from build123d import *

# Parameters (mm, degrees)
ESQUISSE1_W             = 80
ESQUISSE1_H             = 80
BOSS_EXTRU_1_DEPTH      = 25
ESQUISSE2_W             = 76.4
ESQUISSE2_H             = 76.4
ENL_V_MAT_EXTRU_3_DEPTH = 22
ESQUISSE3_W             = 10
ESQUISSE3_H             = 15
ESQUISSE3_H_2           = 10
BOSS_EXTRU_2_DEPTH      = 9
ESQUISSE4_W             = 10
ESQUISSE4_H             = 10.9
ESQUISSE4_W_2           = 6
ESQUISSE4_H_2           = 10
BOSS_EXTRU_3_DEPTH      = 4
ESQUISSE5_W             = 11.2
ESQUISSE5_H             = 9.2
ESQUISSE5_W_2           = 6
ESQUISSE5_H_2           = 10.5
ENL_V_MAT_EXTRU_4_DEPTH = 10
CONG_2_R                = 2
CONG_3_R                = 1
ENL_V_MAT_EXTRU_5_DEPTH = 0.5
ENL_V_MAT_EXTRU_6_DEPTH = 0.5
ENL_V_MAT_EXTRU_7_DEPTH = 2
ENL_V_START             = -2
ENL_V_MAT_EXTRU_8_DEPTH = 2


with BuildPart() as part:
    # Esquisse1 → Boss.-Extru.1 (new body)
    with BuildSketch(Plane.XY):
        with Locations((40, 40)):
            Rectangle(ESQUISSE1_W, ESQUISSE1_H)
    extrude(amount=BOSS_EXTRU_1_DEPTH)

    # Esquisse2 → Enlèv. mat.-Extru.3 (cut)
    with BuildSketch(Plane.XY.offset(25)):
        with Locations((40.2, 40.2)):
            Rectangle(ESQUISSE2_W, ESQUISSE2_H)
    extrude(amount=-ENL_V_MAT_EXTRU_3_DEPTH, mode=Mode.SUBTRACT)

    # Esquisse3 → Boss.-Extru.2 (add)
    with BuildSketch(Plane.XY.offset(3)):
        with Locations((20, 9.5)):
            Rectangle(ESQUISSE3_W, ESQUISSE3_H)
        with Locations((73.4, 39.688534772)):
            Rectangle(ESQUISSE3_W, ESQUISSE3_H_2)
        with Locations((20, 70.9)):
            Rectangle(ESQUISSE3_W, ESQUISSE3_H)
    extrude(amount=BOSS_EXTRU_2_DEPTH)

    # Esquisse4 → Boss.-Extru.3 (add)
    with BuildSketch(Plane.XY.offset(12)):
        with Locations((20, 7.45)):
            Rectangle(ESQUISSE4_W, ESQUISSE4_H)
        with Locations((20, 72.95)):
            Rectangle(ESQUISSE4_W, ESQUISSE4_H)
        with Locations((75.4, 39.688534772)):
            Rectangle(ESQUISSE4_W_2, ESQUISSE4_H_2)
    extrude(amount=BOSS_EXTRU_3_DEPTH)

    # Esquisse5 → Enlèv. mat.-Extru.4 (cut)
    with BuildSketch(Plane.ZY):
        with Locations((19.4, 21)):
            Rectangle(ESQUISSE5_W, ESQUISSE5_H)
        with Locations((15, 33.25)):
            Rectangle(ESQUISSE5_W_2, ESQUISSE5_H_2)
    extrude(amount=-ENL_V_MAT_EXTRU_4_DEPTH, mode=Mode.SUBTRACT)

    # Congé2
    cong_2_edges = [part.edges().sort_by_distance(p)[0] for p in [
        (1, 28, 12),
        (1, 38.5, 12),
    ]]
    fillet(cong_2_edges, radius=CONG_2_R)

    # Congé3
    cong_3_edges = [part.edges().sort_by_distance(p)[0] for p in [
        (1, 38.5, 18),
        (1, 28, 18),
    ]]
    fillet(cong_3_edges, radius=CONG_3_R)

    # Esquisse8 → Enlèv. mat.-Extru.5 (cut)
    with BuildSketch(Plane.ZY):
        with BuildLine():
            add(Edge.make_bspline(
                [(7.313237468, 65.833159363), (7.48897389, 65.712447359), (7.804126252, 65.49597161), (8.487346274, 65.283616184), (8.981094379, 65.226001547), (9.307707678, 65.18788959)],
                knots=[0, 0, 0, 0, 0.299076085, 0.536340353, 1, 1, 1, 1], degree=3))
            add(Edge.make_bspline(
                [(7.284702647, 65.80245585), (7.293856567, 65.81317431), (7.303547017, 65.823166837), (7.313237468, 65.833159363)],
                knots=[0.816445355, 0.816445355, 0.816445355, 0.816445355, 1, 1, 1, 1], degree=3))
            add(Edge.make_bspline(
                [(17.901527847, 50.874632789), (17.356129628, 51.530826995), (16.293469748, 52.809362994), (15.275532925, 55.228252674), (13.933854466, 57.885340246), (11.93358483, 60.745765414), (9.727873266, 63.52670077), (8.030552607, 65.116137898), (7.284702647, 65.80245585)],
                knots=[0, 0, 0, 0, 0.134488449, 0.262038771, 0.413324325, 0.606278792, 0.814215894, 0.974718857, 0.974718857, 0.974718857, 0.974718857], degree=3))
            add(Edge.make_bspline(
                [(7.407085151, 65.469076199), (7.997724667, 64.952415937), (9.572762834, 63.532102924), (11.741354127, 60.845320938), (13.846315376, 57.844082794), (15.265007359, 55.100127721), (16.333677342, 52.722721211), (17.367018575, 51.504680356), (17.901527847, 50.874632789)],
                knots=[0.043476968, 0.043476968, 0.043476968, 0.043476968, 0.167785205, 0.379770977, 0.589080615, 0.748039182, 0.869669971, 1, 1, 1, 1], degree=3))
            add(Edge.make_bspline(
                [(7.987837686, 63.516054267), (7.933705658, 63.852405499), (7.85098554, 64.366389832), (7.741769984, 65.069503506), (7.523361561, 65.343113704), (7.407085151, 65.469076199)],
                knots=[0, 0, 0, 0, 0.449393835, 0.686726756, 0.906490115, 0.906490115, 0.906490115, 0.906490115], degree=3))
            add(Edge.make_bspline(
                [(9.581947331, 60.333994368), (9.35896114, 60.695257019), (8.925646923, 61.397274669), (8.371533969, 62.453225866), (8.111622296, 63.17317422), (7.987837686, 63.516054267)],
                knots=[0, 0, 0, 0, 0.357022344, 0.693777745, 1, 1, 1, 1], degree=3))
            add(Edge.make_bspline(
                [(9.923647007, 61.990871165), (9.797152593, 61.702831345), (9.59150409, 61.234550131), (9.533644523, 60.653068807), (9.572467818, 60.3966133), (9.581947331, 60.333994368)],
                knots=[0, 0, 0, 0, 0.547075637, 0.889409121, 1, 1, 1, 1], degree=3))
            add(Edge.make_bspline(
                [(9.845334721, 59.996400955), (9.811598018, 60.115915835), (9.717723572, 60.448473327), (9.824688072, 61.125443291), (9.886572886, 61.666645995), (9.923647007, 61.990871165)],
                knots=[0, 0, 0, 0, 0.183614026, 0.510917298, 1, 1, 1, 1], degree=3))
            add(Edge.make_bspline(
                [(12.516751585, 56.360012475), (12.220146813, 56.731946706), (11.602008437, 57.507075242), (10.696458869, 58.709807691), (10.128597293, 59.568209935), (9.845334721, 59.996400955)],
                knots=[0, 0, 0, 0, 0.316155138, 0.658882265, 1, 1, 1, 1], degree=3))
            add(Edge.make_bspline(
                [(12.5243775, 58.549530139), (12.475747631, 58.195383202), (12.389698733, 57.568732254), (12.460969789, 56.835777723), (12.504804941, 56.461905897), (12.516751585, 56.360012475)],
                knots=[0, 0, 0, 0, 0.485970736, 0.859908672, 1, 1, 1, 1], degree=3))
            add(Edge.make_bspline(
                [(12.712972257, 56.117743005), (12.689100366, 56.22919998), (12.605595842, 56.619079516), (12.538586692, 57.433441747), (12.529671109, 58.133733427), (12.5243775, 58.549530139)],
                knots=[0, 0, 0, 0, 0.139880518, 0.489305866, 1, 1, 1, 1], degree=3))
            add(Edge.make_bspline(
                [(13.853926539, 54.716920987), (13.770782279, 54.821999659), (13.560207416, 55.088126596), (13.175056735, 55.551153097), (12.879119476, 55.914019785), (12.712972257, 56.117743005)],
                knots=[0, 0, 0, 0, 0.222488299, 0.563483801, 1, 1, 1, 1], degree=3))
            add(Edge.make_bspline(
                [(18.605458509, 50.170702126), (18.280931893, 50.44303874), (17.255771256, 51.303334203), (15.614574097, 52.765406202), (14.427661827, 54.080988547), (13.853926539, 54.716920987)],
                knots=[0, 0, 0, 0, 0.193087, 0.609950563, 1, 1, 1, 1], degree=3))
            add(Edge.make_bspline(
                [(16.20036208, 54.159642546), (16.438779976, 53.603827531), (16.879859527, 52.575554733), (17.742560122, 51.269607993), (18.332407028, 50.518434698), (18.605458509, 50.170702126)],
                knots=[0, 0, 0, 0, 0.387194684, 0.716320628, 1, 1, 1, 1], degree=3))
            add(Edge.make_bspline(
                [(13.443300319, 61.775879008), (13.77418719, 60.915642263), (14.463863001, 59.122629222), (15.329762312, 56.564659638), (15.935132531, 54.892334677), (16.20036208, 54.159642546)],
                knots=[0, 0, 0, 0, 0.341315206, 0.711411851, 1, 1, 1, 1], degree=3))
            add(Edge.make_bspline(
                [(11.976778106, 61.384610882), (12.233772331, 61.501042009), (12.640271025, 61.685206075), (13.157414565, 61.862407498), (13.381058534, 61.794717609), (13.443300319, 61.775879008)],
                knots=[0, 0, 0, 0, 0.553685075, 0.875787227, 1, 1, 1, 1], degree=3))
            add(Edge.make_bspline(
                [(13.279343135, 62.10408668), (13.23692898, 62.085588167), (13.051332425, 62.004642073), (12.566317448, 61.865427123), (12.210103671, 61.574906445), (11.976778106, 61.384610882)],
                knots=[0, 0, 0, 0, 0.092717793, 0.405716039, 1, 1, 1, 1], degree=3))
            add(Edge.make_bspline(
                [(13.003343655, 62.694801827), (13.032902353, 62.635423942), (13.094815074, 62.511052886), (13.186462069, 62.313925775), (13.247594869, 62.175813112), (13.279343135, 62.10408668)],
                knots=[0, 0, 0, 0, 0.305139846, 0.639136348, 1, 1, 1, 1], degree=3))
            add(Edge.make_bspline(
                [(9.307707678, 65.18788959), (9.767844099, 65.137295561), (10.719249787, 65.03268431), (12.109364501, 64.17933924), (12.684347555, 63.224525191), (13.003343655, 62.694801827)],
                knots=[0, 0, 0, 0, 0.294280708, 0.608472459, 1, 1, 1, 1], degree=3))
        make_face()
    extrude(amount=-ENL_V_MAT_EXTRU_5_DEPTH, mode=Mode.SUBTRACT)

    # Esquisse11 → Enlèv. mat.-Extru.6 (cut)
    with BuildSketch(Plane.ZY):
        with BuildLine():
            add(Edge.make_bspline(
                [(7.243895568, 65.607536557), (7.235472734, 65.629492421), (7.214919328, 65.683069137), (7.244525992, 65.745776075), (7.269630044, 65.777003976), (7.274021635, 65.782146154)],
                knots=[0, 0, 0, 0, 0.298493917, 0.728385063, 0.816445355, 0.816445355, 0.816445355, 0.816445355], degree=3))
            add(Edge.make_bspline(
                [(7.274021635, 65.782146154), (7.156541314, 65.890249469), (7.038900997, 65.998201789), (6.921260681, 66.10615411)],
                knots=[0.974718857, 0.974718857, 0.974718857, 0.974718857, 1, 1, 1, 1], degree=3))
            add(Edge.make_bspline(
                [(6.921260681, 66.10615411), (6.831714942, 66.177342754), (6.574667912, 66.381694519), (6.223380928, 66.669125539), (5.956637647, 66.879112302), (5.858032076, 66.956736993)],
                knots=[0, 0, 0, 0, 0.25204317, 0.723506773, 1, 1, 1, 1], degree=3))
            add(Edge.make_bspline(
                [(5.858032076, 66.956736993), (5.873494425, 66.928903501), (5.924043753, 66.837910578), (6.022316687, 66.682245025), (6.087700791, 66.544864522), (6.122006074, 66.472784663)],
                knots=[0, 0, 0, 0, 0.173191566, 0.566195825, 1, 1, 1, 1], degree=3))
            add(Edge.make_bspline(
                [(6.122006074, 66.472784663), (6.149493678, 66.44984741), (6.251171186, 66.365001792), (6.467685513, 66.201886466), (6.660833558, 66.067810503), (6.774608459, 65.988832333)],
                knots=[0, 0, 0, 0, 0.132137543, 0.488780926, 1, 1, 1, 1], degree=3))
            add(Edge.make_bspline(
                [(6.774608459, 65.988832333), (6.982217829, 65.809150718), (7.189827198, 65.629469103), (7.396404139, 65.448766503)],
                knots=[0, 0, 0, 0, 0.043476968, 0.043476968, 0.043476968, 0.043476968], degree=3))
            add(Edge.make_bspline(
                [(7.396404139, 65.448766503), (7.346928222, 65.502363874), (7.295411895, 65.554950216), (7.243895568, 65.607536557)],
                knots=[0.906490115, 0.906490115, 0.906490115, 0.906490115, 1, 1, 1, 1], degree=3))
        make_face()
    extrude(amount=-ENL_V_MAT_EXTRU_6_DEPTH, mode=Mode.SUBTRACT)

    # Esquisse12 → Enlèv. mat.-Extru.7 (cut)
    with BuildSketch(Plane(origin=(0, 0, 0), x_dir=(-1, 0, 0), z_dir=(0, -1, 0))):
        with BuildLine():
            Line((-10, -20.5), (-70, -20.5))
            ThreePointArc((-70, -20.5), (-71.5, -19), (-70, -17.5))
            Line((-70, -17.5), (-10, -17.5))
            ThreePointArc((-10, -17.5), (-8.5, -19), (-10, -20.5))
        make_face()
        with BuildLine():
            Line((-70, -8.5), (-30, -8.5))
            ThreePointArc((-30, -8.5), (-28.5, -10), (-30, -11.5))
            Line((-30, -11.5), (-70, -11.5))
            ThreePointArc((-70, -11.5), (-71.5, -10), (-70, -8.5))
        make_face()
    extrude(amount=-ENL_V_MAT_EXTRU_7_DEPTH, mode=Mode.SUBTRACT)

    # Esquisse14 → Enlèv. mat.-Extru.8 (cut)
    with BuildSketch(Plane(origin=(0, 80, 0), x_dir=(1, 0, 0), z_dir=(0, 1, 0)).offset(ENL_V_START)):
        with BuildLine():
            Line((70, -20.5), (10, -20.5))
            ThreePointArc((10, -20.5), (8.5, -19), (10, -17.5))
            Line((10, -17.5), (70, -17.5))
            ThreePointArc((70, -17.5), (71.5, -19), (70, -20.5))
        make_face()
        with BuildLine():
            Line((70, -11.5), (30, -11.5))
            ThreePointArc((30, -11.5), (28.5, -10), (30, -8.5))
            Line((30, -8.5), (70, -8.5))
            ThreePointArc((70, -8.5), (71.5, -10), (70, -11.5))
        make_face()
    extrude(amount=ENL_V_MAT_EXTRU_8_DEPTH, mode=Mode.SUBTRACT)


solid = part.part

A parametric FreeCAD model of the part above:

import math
import FreeCAD as App
import Part
import Sketcher
Q = App.Units.Quantity


def edges_at(feature, points):
    """Names of the edges that pass closest to the given points."""
    edges = feature.Shape.Edges
    near = lambda p: min(range(len(edges)), key=lambda i: edges[i].distToShape(Part.Vertex(*p))[0])
    return sorted({f"Edge{near(p) + 1}" for p in points})


def add_polygon(sketch, points):
    """Adds a closed chain of lines whose ends are joined by coincident constraints."""
    first, n = sketch.GeometryCount, len(points)
    for a, b in zip(points, points[1:] + points[:1]):
        sketch.addGeometry(Part.LineSegment(App.Vector(*a, 0), App.Vector(*b, 0)), False)
    for i in range(n):
        sketch.addConstraint(Sketcher.Constraint("Coincident", first + i, 2, first + (i + 1) % n, 1))

doc = App.newDocument("Part")
body = doc.addObject("PartDesign::Body", "Body")

# Sketch on XY plane
sketch1 = body.newObject("Sketcher::SketchObject", "Sketch")
sketch1.AttachmentSupport = (doc.getObject("XY_Plane"), [""])
sketch1.MapMode = "FlatFace"
add_polygon(sketch1, [(0, 80), (0, 0), (80, 0), (80, 80)])  # lines 0-3
sketch1.addConstraint(Sketcher.Constraint("Vertical", 0))
sketch1.addConstraint(Sketcher.Constraint("Horizontal", 1))
sketch1.addConstraint(Sketcher.Constraint("Vertical", 2))
sketch1.addConstraint(Sketcher.Constraint("Horizontal", 3))
sketch1.addConstraint(Sketcher.Constraint("Coincident", 0, 2, -1, 1))
sketch1.addConstraint(Sketcher.Constraint("Equal", 3, 0))
sketch1.addConstraint(Sketcher.Constraint("DistanceX", 1, 1, 1, 2, Q("80 mm")))
pad1 = body.newObject("PartDesign::Pad", "Pad")
pad1.Profile = sketch1
pad1.Length = 25

# Sketch on XY plane
sketch2 = body.newObject("Sketcher::SketchObject", "Sketch001")
sketch2.AttachmentSupport = (doc.getObject("XY_Plane"), [""])
sketch2.MapMode = "FlatFace"
sketch2.AttachmentOffset = App.Placement(App.Vector(0, 0, 25), App.Rotation())
add_polygon(sketch2, [(2, 78), (2, 2), (78, 2), (78, 78)])  # lines 0-3
sketch2.addConstraint(Sketcher.Constraint("Vertical", 0))
sketch2.addConstraint(Sketcher.Constraint("Horizontal", 1))
sketch2.addConstraint(Sketcher.Constraint("Vertical", 2))
sketch2.addConstraint(Sketcher.Constraint("Horizontal", 3))
sketch2.addConstraint(Sketcher.Constraint("Equal", 3, 0))
sketch2.addConstraint(Sketcher.Constraint("DistanceX", 1, 1, 1, 2, Q("76.4 mm")))
sketch2.addConstraint(Sketcher.Constraint("DistanceX", -1, 1, 0, 2, Q("2 mm")))
sketch2.addConstraint(Sketcher.Constraint("DistanceY", -1, 1, 0, 2, Q("2 mm")))
pocket1 = body.newObject("PartDesign::Pocket", "Pocket")
pocket1.Profile = sketch2
pocket1.Length = 22

# Sketch on XY plane
sketch3 = body.newObject("Sketcher::SketchObject", "Sketch002")
sketch3.AttachmentSupport = (doc.getObject("XY_Plane"), [""])
sketch3.MapMode = "FlatFace"
sketch3.AttachmentOffset = App.Placement(App.Vector(0, 0, 3), App.Rotation())
add_polygon(sketch3, [(15, 17), (15, 2), (25, 2), (25, 17)])  # lines 0-3
add_polygon(sketch3, [(68, 45), (68, 35), (78, 35), (78, 45)])  # lines 4-7
add_polygon(sketch3, [(15, 78), (15, 63), (25, 63), (25, 78)])  # lines 8-11
sketch3.addConstraint(Sketcher.Constraint("Vertical", 0))
sketch3.addConstraint(Sketcher.Constraint("Horizontal", 1))
sketch3.addConstraint(Sketcher.Constraint("Vertical", 2))
sketch3.addConstraint(Sketcher.Constraint("Horizontal", 3))
sketch3.addConstraint(Sketcher.Constraint("Vertical", 4))
sketch3.addConstraint(Sketcher.Constraint("Horizontal", 5))
sketch3.addConstraint(Sketcher.Constraint("Vertical", 6))
sketch3.addConstraint(Sketcher.Constraint("Horizontal", 7))
sketch3.addConstraint(Sketcher.Constraint("Vertical", 8))
sketch3.addConstraint(Sketcher.Constraint("Horizontal", 9))
sketch3.addConstraint(Sketcher.Constraint("Vertical", 10))
sketch3.addConstraint(Sketcher.Constraint("Horizontal", 11))
sketch3.addConstraint(Sketcher.Constraint("Vertical", 3, 2, 8, 2))
sketch3.addConstraint(Sketcher.Constraint("Vertical", 2, 2, 9, 2))
sketch3.addConstraint(Sketcher.Constraint("Equal", 3, 5))
sketch3.addConstraint(Sketcher.Constraint("Equal", 11, 4))
sketch3.addConstraint(Sketcher.Constraint("Equal", 2, 8))
sketch3.addConstraint(Sketcher.Constraint("DistanceX", 1, 1, 1, 2, Q("10 mm")))
sketch3.addConstraint(Sketcher.Constraint("DistanceY", 0, 2, 0, 1, Q("15 mm")))
sketch3.addConstraint(Sketcher.Constraint("DistanceX", -1, 1, 0, 2, Q("15 mm")))
sketch3.addConstraint(Sketcher.Constraint("DistanceY", -1, 1, 0, 2, Q("2 mm")))
sketch3.addConstraint(Sketcher.Constraint("DistanceX", -1, 1, 4, 2, Q("68.4 mm")))
sketch3.addConstraint(Sketcher.Constraint("DistanceY", -1, 1, 8, 2, Q("63.4 mm")))
sketch3.addConstraint(Sketcher.Constraint("DistanceY", -1, 1, 4, 2, Q("34.688535 mm")))
pad2 = body.newObject("PartDesign::Pad", "Pad001")
pad2.Profile = sketch3
pad2.Length = 9

# Sketch on XY plane
sketch4 = body.newObject("Sketcher::SketchObject", "Sketch003")
sketch4.AttachmentSupport = (doc.getObject("XY_Plane"), [""])
sketch4.MapMode = "FlatFace"
sketch4.AttachmentOffset = App.Placement(App.Vector(0, 0, 12), App.Rotation())
add_polygon(sketch4, [(15, 13), (15, 2), (25, 2), (25, 13)])  # lines 0-3
add_polygon(sketch4, [(15, 78), (15, 68), (25, 68), (25, 78)])  # lines 4-7
add_polygon(sketch4, [(72, 45), (72, 35), (78, 35), (78, 45)])  # lines 8-11
sketch4.addConstraint(Sketcher.Constraint("Vertical", 0))
sketch4.addConstraint(Sketcher.Constraint("Horizontal", 1))
sketch4.addConstraint(Sketcher.Constraint("Vertical", 2))
sketch4.addConstraint(Sketcher.Constraint("Horizontal", 3))
sketch4.addConstraint(Sketcher.Constraint("Vertical", 4))
sketch4.addConstraint(Sketcher.Constraint("Horizontal", 5))
sketch4.addConstraint(Sketcher.Constraint("Vertical", 6))
sketch4.addConstraint(Sketcher.Constraint("Horizontal", 7))
sketch4.addConstraint(Sketcher.Constraint("Vertical", 8))
sketch4.addConstraint(Sketcher.Constraint("Horizontal", 9))
sketch4.addConstraint(Sketcher.Constraint("Vertical", 10))
sketch4.addConstraint(Sketcher.Constraint("Horizontal", 11))
sketch4.addConstraint(Sketcher.Constraint("Vertical", 3, 2, 4, 2))
sketch4.addConstraint(Sketcher.Constraint("Vertical", 2, 2, 5, 2))
sketch4.addConstraint(Sketcher.Constraint("Equal", 2, 4))
sketch4.addConstraint(Sketcher.Constraint("Equal", 7, 8))
sketch4.addConstraint(Sketcher.Constraint("DistanceX", 1, 1, 1, 2, Q("10 mm")))
sketch4.addConstraint(Sketcher.Constraint("DistanceX", 9, 1, 9, 2, Q("6 mm")))
sketch4.addConstraint(Sketcher.Constraint("DistanceY", 0, 2, 0, 1, Q("10.9 mm")))
sketch4.addConstraint(Sketcher.Constraint("DistanceX", -1, 1, 0, 2, Q("15 mm")))
sketch4.addConstraint(Sketcher.Constraint("DistanceY", -1, 1, 0, 2, Q("2 mm")))
sketch4.addConstraint(Sketcher.Constraint("DistanceY", -1, 1, 4, 2, Q("67.5 mm")))
sketch4.addConstraint(Sketcher.Constraint("DistanceX", -1, 1, 8, 2, Q("72.4 mm")))
sketch4.addConstraint(Sketcher.Constraint("DistanceY", -1, 1, 8, 2, Q("34.688535 mm")))
pad3 = body.newObject("PartDesign::Pad", "Pad002")
pad3.Profile = sketch4
pad3.Length = 4

# Sketch on YZ plane
sketch5 = body.newObject("Sketcher::SketchObject", "Sketch004")
sketch5.AttachmentSupport = (doc.getObject("YZ_Plane"), [""])
sketch5.MapMode = "FlatFace"
add_polygon(sketch5, [(26, 14), (16, 14), (16, 25), (26, 25)])  # lines 0-3
add_polygon(sketch5, [(38, 12), (28, 12), (28, 18), (38, 18)])  # lines 4-7
sketch5.addConstraint(Sketcher.Constraint("Horizontal", 0))
sketch5.addConstraint(Sketcher.Constraint("Vertical", 1))
sketch5.addConstraint(Sketcher.Constraint("Horizontal", 2))
sketch5.addConstraint(Sketcher.Constraint("Vertical", 3))
sketch5.addConstraint(Sketcher.Constraint("Horizontal", 4))
sketch5.addConstraint(Sketcher.Constraint("Vertical", 5))
sketch5.addConstraint(Sketcher.Constraint("Horizontal", 6))
sketch5.addConstraint(Sketcher.Constraint("Vertical", 7))
sketch5.addConstraint(Sketcher.Constraint("DistanceY", 5, 1, 5, 2, Q("6 mm")))
sketch5.addConstraint(Sketcher.Constraint("DistanceX", 0, 2, 0, 1, Q("9.2 mm")))
sketch5.addConstraint(Sketcher.Constraint("DistanceX", 4, 2, 4, 1, Q("10.5 mm")))
sketch5.addConstraint(Sketcher.Constraint("DistanceY", 1, 1, 1, 2, Q("11.2 mm")))
sketch5.addConstraint(Sketcher.Constraint("DistanceY", -1, 1, 1, 2, Q("25 mm")))
sketch5.addConstraint(Sketcher.Constraint("DistanceX", -1, 1, 4, 2, Q("28 mm")))
sketch5.addConstraint(Sketcher.Constraint("DistanceY", -1, 1, 4, 2, Q("12 mm")))
sketch5.addConstraint(Sketcher.Constraint("DistanceX", -1, 1, 0, 2, Q("16.4 mm")))
pocket2 = body.newObject("PartDesign::Pocket", "Pocket001")
pocket2.Profile = sketch5
pocket2.Length = 10
pocket2.Reversed = True
doc.recompute()

fillet = body.newObject("PartDesign::Fillet", "Fillet")
fillet.Base = (pocket2, edges_at(pocket2, [(1, 28, 12), (1, 38.5, 12)]))
fillet.Radius = 2
doc.recompute()

fillet2 = body.newObject("PartDesign::Fillet", "Fillet001")
fillet2.Base = (fillet, edges_at(fillet, [(1, 38.5, 18), (1, 28, 18)]))
fillet2.Radius = 1

# Sketch on YZ plane
sketch6 = body.newObject("Sketcher::SketchObject", "Sketch005")
sketch6.AttachmentSupport = (doc.getObject("YZ_Plane"), [""])
sketch6.MapMode = "FlatFace"
sketch6.addGeometry(Part.BSplineCurve([App.Vector(65.833159, 7.313237, 0), App.Vector(65.712447, 7.488974, 0), App.Vector(65.495972, 7.804126, 0), App.Vector(65.283616, 8.487346, 0), App.Vector(65.226002, 8.981094, 0), App.Vector(65.18789, 9.307708, 0)], [4, 1, 1, 4], [0, 0.299076085, 0.536340353, 1], False, 3, [1, 1, 1, 1, 1, 1], False), False)
sketch6.addGeometry(Part.BSplineCurve([App.Vector(65.802456, 7.284703, 0), App.Vector(65.813174, 7.293857, 0), App.Vector(65.823167, 7.303547, 0), App.Vector(65.833159, 7.313237, 0)], [4, 4], [0.816445355, 1], False, 3, [1, 1, 1, 1], False), False)
sketch6.addGeometry(Part.BSplineCurve([App.Vector(50.874633, 17.901528, 0), App.Vector(51.530827, 17.35613, 0), App.Vector(52.809363, 16.29347, 0), App.Vector(55.228253, 15.275533, 0), App.Vector(57.88534, 13.933854, 0), App.Vector(60.745765, 11.933585, 0), App.Vector(63.526701, 9.727873, 0), App.Vector(65.116138, 8.030553, 0), App.Vector(65.802456, 7.284703, 0)], [4, 1, 1, 1, 1, 1, 4], [0, 0.134488449, 0.262038771, 0.413324325, 0.606278792, 0.814215894, 0.974718857], False, 3, [1, 1, 1, 1, 1, 1, 1, 1, 1], False), False)
sketch6.addGeometry(Part.BSplineCurve([App.Vector(65.469076, 7.407085, 0), App.Vector(64.952416, 7.997725, 0), App.Vector(63.532103, 9.572763, 0), App.Vector(60.845321, 11.741354, 0), App.Vector(57.844083, 13.846315, 0), App.Vector(55.100128, 15.265007, 0), App.Vector(52.722721, 16.333677, 0), App.Vector(51.50468, 17.367019, 0), App.Vector(50.874633, 17.901528, 0)], [4, 1, 1, 1, 1, 1, 4], [0.043476968, 0.167785205, 0.379770977, 0.589080615, 0.748039182, 0.869669971, 1], False, 3, [1, 1, 1, 1, 1, 1, 1, 1, 1], False), False)
sketch6.addGeometry(Part.BSplineCurve([App.Vector(63.516054, 7.987838, 0), App.Vector(63.852405, 7.933706, 0), App.Vector(64.36639, 7.850986, 0), App.Vector(65.069504, 7.74177, 0), App.Vector(65.343114, 7.523362, 0), App.Vector(65.469076, 7.407085, 0)], [4, 1, 1, 4], [0, 0.449393835, 0.686726756, 0.906490115], False, 3, [1, 1, 1, 1, 1, 1], False), False)
sketch6.addGeometry(Part.BSplineCurve([App.Vector(60.333994, 9.581947, 0), App.Vector(60.695257, 9.358961, 0), App.Vector(61.397275, 8.925647, 0), App.Vector(62.453226, 8.371534, 0), App.Vector(63.173174, 8.111622, 0), App.Vector(63.516054, 7.987838, 0)], [4, 1, 1, 4], [0, 0.357022344, 0.693777745, 1], False, 3, [1, 1, 1, 1, 1, 1], False), False)
sketch6.addGeometry(Part.BSplineCurve([App.Vector(61.990871, 9.923647, 0), App.Vector(61.702831, 9.797153, 0), App.Vector(61.23455, 9.591504, 0), App.Vector(60.653069, 9.533645, 0), App.Vector(60.396613, 9.572468, 0), App.Vector(60.333994, 9.581947, 0)], [4, 1, 1, 4], [0, 0.547075637, 0.889409121, 1], False, 3, [1, 1, 1, 1, 1, 1], False), False)
sketch6.addGeometry(Part.BSplineCurve([App.Vector(59.996401, 9.845335, 0), App.Vector(60.115916, 9.811598, 0), App.Vector(60.448473, 9.717724, 0), App.Vector(61.125443, 9.824688, 0), App.Vector(61.666646, 9.886573, 0), App.Vector(61.990871, 9.923647, 0)], [4, 1, 1, 4], [0, 0.183614026, 0.510917298, 1], False, 3, [1, 1, 1, 1, 1, 1], False), False)
sketch6.addGeometry(Part.BSplineCurve([App.Vector(56.360012, 12.516752, 0), App.Vector(56.731947, 12.220147, 0), App.Vector(57.507075, 11.602008, 0), App.Vector(58.709808, 10.696459, 0), App.Vector(59.56821, 10.128597, 0), App.Vector(59.996401, 9.845335, 0)], [4, 1, 1, 4], [0, 0.316155138, 0.658882265, 1], False, 3, [1, 1, 1, 1, 1, 1], False), False)
sketch6.addGeometry(Part.BSplineCurve([App.Vector(58.54953, 12.524377, 0), App.Vector(58.195383, 12.475748, 0), App.Vector(57.568732, 12.389699, 0), App.Vector(56.835778, 12.46097, 0), App.Vector(56.461906, 12.504805, 0), App.Vector(56.360012, 12.516752, 0)], [4, 1, 1, 4], [0, 0.485970736, 0.859908672, 1], False, 3, [1, 1, 1, 1, 1, 1], False), False)
sketch6.addGeometry(Part.BSplineCurve([App.Vector(56.117743, 12.712972, 0), App.Vector(56.2292, 12.6891, 0), App.Vector(56.61908, 12.605596, 0), App.Vector(57.433442, 12.538587, 0), App.Vector(58.133733, 12.529671, 0), App.Vector(58.54953, 12.524377, 0)], [4, 1, 1, 4], [0, 0.139880518, 0.489305866, 1], False, 3, [1, 1, 1, 1, 1, 1], False), False)
sketch6.addGeometry(Part.BSplineCurve([App.Vector(54.716921, 13.853927, 0), App.Vector(54.822, 13.770782, 0), App.Vector(55.088127, 13.560207, 0), App.Vector(55.551153, 13.175057, 0), App.Vector(55.91402, 12.879119, 0), App.Vector(56.117743, 12.712972, 0)], [4, 1, 1, 4], [0, 0.222488299, 0.563483801, 1], False, 3, [1, 1, 1, 1, 1, 1], False), False)
sketch6.addGeometry(Part.BSplineCurve([App.Vector(50.170702, 18.605459, 0), App.Vector(50.443039, 18.280932, 0), App.Vector(51.303334, 17.255771, 0), App.Vector(52.765406, 15.614574, 0), App.Vector(54.080989, 14.427662, 0), App.Vector(54.716921, 13.853927, 0)], [4, 1, 1, 4], [0, 0.193087, 0.609950563, 1], False, 3, [1, 1, 1, 1, 1, 1], False), False)
sketch6.addGeometry(Part.BSplineCurve([App.Vector(54.159643, 16.200362, 0), App.Vector(53.603828, 16.43878, 0), App.Vector(52.575555, 16.87986, 0), App.Vector(51.269608, 17.74256, 0), App.Vector(50.518435, 18.332407, 0), App.Vector(50.170702, 18.605459, 0)], [4, 1, 1, 4], [0, 0.387194684, 0.716320628, 1], False, 3, [1, 1, 1, 1, 1, 1], False), False)
sketch6.addGeometry(Part.BSplineCurve([App.Vector(61.775879, 13.4433, 0), App.Vector(60.915642, 13.774187, 0), App.Vector(59.122629, 14.463863, 0), App.Vector(56.56466, 15.329762, 0), App.Vector(54.892335, 15.935133, 0), App.Vector(54.159643, 16.200362, 0)], [4, 1, 1, 4], [0, 0.341315206, 0.711411851, 1], False, 3, [1, 1, 1, 1, 1, 1], False), False)
sketch6.addGeometry(Part.BSplineCurve([App.Vector(61.384611, 11.976778, 0), App.Vector(61.501042, 12.233772, 0), App.Vector(61.685206, 12.640271, 0), App.Vector(61.862407, 13.157415, 0), App.Vector(61.794718, 13.381059, 0), App.Vector(61.775879, 13.4433, 0)], [4, 1, 1, 4], [0, 0.553685075, 0.875787227, 1], False, 3, [1, 1, 1, 1, 1, 1], False), False)
sketch6.addGeometry(Part.BSplineCurve([App.Vector(62.104087, 13.279343, 0), App.Vector(62.085588, 13.236929, 0), App.Vector(62.004642, 13.051332, 0), App.Vector(61.865427, 12.566317, 0), App.Vector(61.574906, 12.210104, 0), App.Vector(61.384611, 11.976778, 0)], [4, 1, 1, 4], [0, 0.092717793, 0.405716039, 1], False, 3, [1, 1, 1, 1, 1, 1], False), False)
sketch6.addGeometry(Part.BSplineCurve([App.Vector(62.694802, 13.003344, 0), App.Vector(62.635424, 13.032902, 0), App.Vector(62.511053, 13.094815, 0), App.Vector(62.313926, 13.186462, 0), App.Vector(62.175813, 13.247595, 0), App.Vector(62.104087, 13.279343, 0)], [4, 1, 1, 4], [0, 0.305139846, 0.639136348, 1], False, 3, [1, 1, 1, 1, 1, 1], False), False)
sketch6.addGeometry(Part.BSplineCurve([App.Vector(65.18789, 9.307708, 0), App.Vector(65.137296, 9.767844, 0), App.Vector(65.032684, 10.71925, 0), App.Vector(64.179339, 12.109365, 0), App.Vector(63.224525, 12.684348, 0), App.Vector(62.694802, 13.003344, 0)], [4, 1, 1, 4], [0, 0.294280708, 0.608472459, 1], False, 3, [1, 1, 1, 1, 1, 1], False), False)
sketch6.addConstraint(Sketcher.Constraint("Block", 0))
sketch6.addConstraint(Sketcher.Constraint("Block", 1))
sketch6.addConstraint(Sketcher.Constraint("Block", 2))
sketch6.addConstraint(Sketcher.Constraint("Block", 3))
sketch6.addConstraint(Sketcher.Constraint("Block", 4))
sketch6.addConstraint(Sketcher.Constraint("Block", 5))
sketch6.addConstraint(Sketcher.Constraint("Block", 6))
sketch6.addConstraint(Sketcher.Constraint("Block", 7))
sketch6.addConstraint(Sketcher.Constraint("Block", 8))
sketch6.addConstraint(Sketcher.Constraint("Block", 9))
sketch6.addConstraint(Sketcher.Constraint("Block", 10))
sketch6.addConstraint(Sketcher.Constraint("Block", 11))
sketch6.addConstraint(Sketcher.Constraint("Block", 12))
sketch6.addConstraint(Sketcher.Constraint("Block", 13))
sketch6.addConstraint(Sketcher.Constraint("Block", 14))
sketch6.addConstraint(Sketcher.Constraint("Block", 15))
sketch6.addConstraint(Sketcher.Constraint("Block", 16))
sketch6.addConstraint(Sketcher.Constraint("Block", 17))
sketch6.addConstraint(Sketcher.Constraint("Block", 18))
pocket3 = body.newObject("PartDesign::Pocket", "Pocket002")
pocket3.Profile = sketch6
pocket3.Length = 0.5
pocket3.Reversed = True

# Sketch on YZ plane
sketch7 = body.newObject("Sketcher::SketchObject", "Sketch006")
sketch7.AttachmentSupport = (doc.getObject("YZ_Plane"), [""])
sketch7.MapMode = "FlatFace"
sketch7.addGeometry(Part.BSplineCurve([App.Vector(65.607537, 7.243896, 0), App.Vector(65.629492, 7.235473, 0), App.Vector(65.683069, 7.214919, 0), App.Vector(65.745776, 7.244526, 0), App.Vector(65.777004, 7.26963, 0), App.Vector(65.782146, 7.274022, 0)], [4, 1, 1, 4], [0, 0.298493917, 0.728385063, 0.816445355], False, 3, [1, 1, 1, 1, 1, 1], False), False)
sketch7.addGeometry(Part.BSplineCurve([App.Vector(65.782146, 7.274022, 0), App.Vector(65.890249, 7.156541, 0), App.Vector(65.998202, 7.038901, 0), App.Vector(66.106154, 6.921261, 0)], [4, 4], [0.974718857, 1], False, 3, [1, 1, 1, 1], False), False)
sketch7.addGeometry(Part.BSplineCurve([App.Vector(66.106154, 6.921261, 0), App.Vector(66.177343, 6.831715, 0), App.Vector(66.381695, 6.574668, 0), App.Vector(66.669126, 6.223381, 0), App.Vector(66.879112, 5.956638, 0), App.Vector(66.956737, 5.858032, 0)], [4, 1, 1, 4], [0, 0.25204317, 0.723506773, 1], False, 3, [1, 1, 1, 1, 1, 1], False), False)
sketch7.addGeometry(Part.BSplineCurve([App.Vector(66.956737, 5.858032, 0), App.Vector(66.928904, 5.873494, 0), App.Vector(66.837911, 5.924044, 0), App.Vector(66.682245, 6.022317, 0), App.Vector(66.544865, 6.087701, 0), App.Vector(66.472785, 6.122006, 0)], [4, 1, 1, 4], [0, 0.173191566, 0.566195825, 1], False, 3, [1, 1, 1, 1, 1, 1], False), False)
sketch7.addGeometry(Part.BSplineCurve([App.Vector(66.472785, 6.122006, 0), App.Vector(66.449847, 6.149494, 0), App.Vector(66.365002, 6.251171, 0), App.Vector(66.201886, 6.467686, 0), App.Vector(66.067811, 6.660834, 0), App.Vector(65.988832, 6.774608, 0)], [4, 1, 1, 4], [0, 0.132137543, 0.488780926, 1], False, 3, [1, 1, 1, 1, 1, 1], False), False)
sketch7.addGeometry(Part.BSplineCurve([App.Vector(65.988832, 6.774608, 0), App.Vector(65.809151, 6.982218, 0), App.Vector(65.629469, 7.189827, 0), App.Vector(65.448767, 7.396404, 0)], [4, 4], [0, 0.043476968], False, 3, [1, 1, 1, 1], False), False)
sketch7.addGeometry(Part.BSplineCurve([App.Vector(65.448767, 7.396404, 0), App.Vector(65.502364, 7.346928, 0), App.Vector(65.55495, 7.295412, 0), App.Vector(65.607537, 7.243896, 0)], [4, 4], [0.906490115, 1], False, 3, [1, 1, 1, 1], False), False)
sketch7.addConstraint(Sketcher.Constraint("Block", 0))
sketch7.addConstraint(Sketcher.Constraint("Block", 1))
sketch7.addConstraint(Sketcher.Constraint("Block", 2))
sketch7.addConstraint(Sketcher.Constraint("Block", 3))
sketch7.addConstraint(Sketcher.Constraint("Block", 4))
sketch7.addConstraint(Sketcher.Constraint("Block", 5))
sketch7.addConstraint(Sketcher.Constraint("Block", 6))
pocket4 = body.newObject("PartDesign::Pocket", "Pocket003")
pocket4.Profile = sketch7
pocket4.Length = 0.5
pocket4.Reversed = True

# Sketch on XZ plane
sketch8 = body.newObject("Sketcher::SketchObject", "Sketch007")
sketch8.AttachmentSupport = (doc.getObject("XZ_Plane"), [""])
sketch8.MapMode = "FlatFace"
sketch8.addGeometry(Part.LineSegment(App.Vector(70, 20.5, 0), App.Vector(10, 20.5, 0)), False)
sketch8.addGeometry(Part.ArcOfCircle(Part.Circle(App.Vector(10, 19, 0), App.Vector(0, 0, 1), 1.5), math.radians(90), math.radians(270)), False)
sketch8.addGeometry(Part.LineSegment(App.Vector(10, 17.5, 0), App.Vector(70, 17.5, 0)), False)
sketch8.addGeometry(Part.ArcOfCircle(Part.Circle(App.Vector(70, 19, 0), App.Vector(0, 0, 1), 1.5), math.radians(-90), math.radians(90)), False)
sketch8.addGeometry(Part.LineSegment(App.Vector(30, 8.5, 0), App.Vector(70, 8.5, 0)), False)
sketch8.addGeometry(Part.ArcOfCircle(Part.Circle(App.Vector(70, 10, 0), App.Vector(0, 0, 1), 1.5), math.radians(-90), math.radians(90)), False)
sketch8.addGeometry(Part.LineSegment(App.Vector(70, 11.5, 0), App.Vector(30, 11.5, 0)), False)
sketch8.addGeometry(Part.ArcOfCircle(Part.Circle(App.Vector(30, 10, 0), App.Vector(0, 0, 1), 1.5), math.radians(90), math.radians(270)), False)
sketch8.addConstraint(Sketcher.Constraint("Tangent", 0, 2, 1, 1))
sketch8.addConstraint(Sketcher.Constraint("Tangent", 1, 2, 2, 1))
sketch8.addConstraint(Sketcher.Constraint("Tangent", 2, 2, 3, 1))
sketch8.addConstraint(Sketcher.Constraint("Tangent", 3, 2, 0, 1))
sketch8.addConstraint(Sketcher.Constraint("Tangent", 4, 2, 5, 1))
sketch8.addConstraint(Sketcher.Constraint("Tangent", 5, 2, 6, 1))
sketch8.addConstraint(Sketcher.Constraint("Tangent", 6, 2, 7, 1))
sketch8.addConstraint(Sketcher.Constraint("Tangent", 7, 2, 4, 1))
sketch8.addConstraint(Sketcher.Constraint("Horizontal", 0))
sketch8.addConstraint(Sketcher.Constraint("Horizontal", 2))
sketch8.addConstraint(Sketcher.Constraint("Horizontal", 4))
sketch8.addConstraint(Sketcher.Constraint("Horizontal", 6))
sketch8.addConstraint(Sketcher.Constraint("Equal", 3, 5))
sketch8.addConstraint(Sketcher.Constraint("Vertical", 3, 3, 5, 3))
sketch8.addConstraint(Sketcher.Constraint("Radius", 1, Q("1.5 mm")))
sketch8.addConstraint(Sketcher.Constraint("DistanceX", 0, 2, 0, 1, Q("60 mm")))
sketch8.addConstraint(Sketcher.Constraint("DistanceX", 4, 1, 4, 2, Q("40 mm")))
sketch8.addConstraint(Sketcher.Constraint("DistanceX", -1, 1, 1, 3, Q("10 mm")))
sketch8.addConstraint(Sketcher.Constraint("DistanceY", -1, 1, 1, 3, Q("19 mm")))
sketch8.addConstraint(Sketcher.Constraint("DistanceY", -1, 1, 5, 3, Q("10 mm")))
pocket5 = body.newObject("PartDesign::Pocket", "Pocket004")
pocket5.Profile = sketch8
pocket5.Length = 2

# Sketch on XZ plane
sketch9 = body.newObject("Sketcher::SketchObject", "Sketch008")
sketch9.AttachmentSupport = (doc.getObject("XZ_Plane"), [""])
sketch9.MapMode = "FlatFace"
sketch9.AttachmentOffset = App.Placement(App.Vector(0, 0, -78), App.Rotation())
sketch9.addGeometry(Part.LineSegment(App.Vector(10, 20.5, 0), App.Vector(70, 20.5, 0)), False)
sketch9.addGeometry(Part.ArcOfCircle(Part.Circle(App.Vector(70, 19, 0), App.Vector(0, 0, 1), 1.5), math.radians(-90), math.radians(90)), False)
sketch9.addGeometry(Part.LineSegment(App.Vector(70, 17.5, 0), App.Vector(10, 17.5, 0)), False)
sketch9.addGeometry(Part.ArcOfCircle(Part.Circle(App.Vector(10, 19, 0), App.Vector(0, 0, 1), 1.5), math.radians(90), math.radians(270)), False)
sketch9.addGeometry(Part.LineSegment(App.Vector(30, 11.5, 0), App.Vector(70, 11.5, 0)), False)
sketch9.addGeometry(Part.ArcOfCircle(Part.Circle(App.Vector(70, 10, 0), App.Vector(0, 0, 1), 1.5), math.radians(-90), math.radians(90)), False)
sketch9.addGeometry(Part.LineSegment(App.Vector(70, 8.5, 0), App.Vector(30, 8.5, 0)), False)
sketch9.addGeometry(Part.ArcOfCircle(Part.Circle(App.Vector(30, 10, 0), App.Vector(0, 0, 1), 1.5), math.radians(90), math.radians(270)), False)
sketch9.addConstraint(Sketcher.Constraint("Tangent", 0, 2, 1, 2))
sketch9.addConstraint(Sketcher.Constraint("Tangent", 1, 1, 2, 1))
sketch9.addConstraint(Sketcher.Constraint("Tangent", 2, 2, 3, 2))
sketch9.addConstraint(Sketcher.Constraint("Tangent", 3, 1, 0, 1))
sketch9.addConstraint(Sketcher.Constraint("Tangent", 4, 2, 5, 2))
sketch9.addConstraint(Sketcher.Constraint("Tangent", 5, 1, 6, 1))
sketch9.addConstraint(Sketcher.Constraint("Tangent", 6, 2, 7, 2))
sketch9.addConstraint(Sketcher.Constraint("Tangent", 7, 1, 4, 1))
sketch9.addConstraint(Sketcher.Constraint("Horizontal", 0))
sketch9.addConstraint(Sketcher.Constraint("Horizontal", 2))
sketch9.addConstraint(Sketcher.Constraint("Horizontal", 4))
sketch9.addConstraint(Sketcher.Constraint("Horizontal", 6))
sketch9.addConstraint(Sketcher.Constraint("Equal", 3, 5))
sketch9.addConstraint(Sketcher.Constraint("Vertical", 1, 3, 5, 3))
sketch9.addConstraint(Sketcher.Constraint("Radius", 1, Q("1.5 mm")))
sketch9.addConstraint(Sketcher.Constraint("DistanceX", 0, 1, 0, 2, Q("60 mm")))
sketch9.addConstraint(Sketcher.Constraint("DistanceX", 4, 1, 4, 2, Q("40 mm")))
sketch9.addConstraint(Sketcher.Constraint("DistanceX", -1, 1, 1, 3, Q("70 mm")))
sketch9.addConstraint(Sketcher.Constraint("DistanceY", -1, 1, 1, 3, Q("19 mm")))
sketch9.addConstraint(Sketcher.Constraint("DistanceY", -1, 1, 5, 3, Q("10 mm")))
pocket6 = body.newObject("PartDesign::Pocket", "Pocket005")
pocket6.Profile = sketch9
pocket6.Length = 2

doc.recompute()
